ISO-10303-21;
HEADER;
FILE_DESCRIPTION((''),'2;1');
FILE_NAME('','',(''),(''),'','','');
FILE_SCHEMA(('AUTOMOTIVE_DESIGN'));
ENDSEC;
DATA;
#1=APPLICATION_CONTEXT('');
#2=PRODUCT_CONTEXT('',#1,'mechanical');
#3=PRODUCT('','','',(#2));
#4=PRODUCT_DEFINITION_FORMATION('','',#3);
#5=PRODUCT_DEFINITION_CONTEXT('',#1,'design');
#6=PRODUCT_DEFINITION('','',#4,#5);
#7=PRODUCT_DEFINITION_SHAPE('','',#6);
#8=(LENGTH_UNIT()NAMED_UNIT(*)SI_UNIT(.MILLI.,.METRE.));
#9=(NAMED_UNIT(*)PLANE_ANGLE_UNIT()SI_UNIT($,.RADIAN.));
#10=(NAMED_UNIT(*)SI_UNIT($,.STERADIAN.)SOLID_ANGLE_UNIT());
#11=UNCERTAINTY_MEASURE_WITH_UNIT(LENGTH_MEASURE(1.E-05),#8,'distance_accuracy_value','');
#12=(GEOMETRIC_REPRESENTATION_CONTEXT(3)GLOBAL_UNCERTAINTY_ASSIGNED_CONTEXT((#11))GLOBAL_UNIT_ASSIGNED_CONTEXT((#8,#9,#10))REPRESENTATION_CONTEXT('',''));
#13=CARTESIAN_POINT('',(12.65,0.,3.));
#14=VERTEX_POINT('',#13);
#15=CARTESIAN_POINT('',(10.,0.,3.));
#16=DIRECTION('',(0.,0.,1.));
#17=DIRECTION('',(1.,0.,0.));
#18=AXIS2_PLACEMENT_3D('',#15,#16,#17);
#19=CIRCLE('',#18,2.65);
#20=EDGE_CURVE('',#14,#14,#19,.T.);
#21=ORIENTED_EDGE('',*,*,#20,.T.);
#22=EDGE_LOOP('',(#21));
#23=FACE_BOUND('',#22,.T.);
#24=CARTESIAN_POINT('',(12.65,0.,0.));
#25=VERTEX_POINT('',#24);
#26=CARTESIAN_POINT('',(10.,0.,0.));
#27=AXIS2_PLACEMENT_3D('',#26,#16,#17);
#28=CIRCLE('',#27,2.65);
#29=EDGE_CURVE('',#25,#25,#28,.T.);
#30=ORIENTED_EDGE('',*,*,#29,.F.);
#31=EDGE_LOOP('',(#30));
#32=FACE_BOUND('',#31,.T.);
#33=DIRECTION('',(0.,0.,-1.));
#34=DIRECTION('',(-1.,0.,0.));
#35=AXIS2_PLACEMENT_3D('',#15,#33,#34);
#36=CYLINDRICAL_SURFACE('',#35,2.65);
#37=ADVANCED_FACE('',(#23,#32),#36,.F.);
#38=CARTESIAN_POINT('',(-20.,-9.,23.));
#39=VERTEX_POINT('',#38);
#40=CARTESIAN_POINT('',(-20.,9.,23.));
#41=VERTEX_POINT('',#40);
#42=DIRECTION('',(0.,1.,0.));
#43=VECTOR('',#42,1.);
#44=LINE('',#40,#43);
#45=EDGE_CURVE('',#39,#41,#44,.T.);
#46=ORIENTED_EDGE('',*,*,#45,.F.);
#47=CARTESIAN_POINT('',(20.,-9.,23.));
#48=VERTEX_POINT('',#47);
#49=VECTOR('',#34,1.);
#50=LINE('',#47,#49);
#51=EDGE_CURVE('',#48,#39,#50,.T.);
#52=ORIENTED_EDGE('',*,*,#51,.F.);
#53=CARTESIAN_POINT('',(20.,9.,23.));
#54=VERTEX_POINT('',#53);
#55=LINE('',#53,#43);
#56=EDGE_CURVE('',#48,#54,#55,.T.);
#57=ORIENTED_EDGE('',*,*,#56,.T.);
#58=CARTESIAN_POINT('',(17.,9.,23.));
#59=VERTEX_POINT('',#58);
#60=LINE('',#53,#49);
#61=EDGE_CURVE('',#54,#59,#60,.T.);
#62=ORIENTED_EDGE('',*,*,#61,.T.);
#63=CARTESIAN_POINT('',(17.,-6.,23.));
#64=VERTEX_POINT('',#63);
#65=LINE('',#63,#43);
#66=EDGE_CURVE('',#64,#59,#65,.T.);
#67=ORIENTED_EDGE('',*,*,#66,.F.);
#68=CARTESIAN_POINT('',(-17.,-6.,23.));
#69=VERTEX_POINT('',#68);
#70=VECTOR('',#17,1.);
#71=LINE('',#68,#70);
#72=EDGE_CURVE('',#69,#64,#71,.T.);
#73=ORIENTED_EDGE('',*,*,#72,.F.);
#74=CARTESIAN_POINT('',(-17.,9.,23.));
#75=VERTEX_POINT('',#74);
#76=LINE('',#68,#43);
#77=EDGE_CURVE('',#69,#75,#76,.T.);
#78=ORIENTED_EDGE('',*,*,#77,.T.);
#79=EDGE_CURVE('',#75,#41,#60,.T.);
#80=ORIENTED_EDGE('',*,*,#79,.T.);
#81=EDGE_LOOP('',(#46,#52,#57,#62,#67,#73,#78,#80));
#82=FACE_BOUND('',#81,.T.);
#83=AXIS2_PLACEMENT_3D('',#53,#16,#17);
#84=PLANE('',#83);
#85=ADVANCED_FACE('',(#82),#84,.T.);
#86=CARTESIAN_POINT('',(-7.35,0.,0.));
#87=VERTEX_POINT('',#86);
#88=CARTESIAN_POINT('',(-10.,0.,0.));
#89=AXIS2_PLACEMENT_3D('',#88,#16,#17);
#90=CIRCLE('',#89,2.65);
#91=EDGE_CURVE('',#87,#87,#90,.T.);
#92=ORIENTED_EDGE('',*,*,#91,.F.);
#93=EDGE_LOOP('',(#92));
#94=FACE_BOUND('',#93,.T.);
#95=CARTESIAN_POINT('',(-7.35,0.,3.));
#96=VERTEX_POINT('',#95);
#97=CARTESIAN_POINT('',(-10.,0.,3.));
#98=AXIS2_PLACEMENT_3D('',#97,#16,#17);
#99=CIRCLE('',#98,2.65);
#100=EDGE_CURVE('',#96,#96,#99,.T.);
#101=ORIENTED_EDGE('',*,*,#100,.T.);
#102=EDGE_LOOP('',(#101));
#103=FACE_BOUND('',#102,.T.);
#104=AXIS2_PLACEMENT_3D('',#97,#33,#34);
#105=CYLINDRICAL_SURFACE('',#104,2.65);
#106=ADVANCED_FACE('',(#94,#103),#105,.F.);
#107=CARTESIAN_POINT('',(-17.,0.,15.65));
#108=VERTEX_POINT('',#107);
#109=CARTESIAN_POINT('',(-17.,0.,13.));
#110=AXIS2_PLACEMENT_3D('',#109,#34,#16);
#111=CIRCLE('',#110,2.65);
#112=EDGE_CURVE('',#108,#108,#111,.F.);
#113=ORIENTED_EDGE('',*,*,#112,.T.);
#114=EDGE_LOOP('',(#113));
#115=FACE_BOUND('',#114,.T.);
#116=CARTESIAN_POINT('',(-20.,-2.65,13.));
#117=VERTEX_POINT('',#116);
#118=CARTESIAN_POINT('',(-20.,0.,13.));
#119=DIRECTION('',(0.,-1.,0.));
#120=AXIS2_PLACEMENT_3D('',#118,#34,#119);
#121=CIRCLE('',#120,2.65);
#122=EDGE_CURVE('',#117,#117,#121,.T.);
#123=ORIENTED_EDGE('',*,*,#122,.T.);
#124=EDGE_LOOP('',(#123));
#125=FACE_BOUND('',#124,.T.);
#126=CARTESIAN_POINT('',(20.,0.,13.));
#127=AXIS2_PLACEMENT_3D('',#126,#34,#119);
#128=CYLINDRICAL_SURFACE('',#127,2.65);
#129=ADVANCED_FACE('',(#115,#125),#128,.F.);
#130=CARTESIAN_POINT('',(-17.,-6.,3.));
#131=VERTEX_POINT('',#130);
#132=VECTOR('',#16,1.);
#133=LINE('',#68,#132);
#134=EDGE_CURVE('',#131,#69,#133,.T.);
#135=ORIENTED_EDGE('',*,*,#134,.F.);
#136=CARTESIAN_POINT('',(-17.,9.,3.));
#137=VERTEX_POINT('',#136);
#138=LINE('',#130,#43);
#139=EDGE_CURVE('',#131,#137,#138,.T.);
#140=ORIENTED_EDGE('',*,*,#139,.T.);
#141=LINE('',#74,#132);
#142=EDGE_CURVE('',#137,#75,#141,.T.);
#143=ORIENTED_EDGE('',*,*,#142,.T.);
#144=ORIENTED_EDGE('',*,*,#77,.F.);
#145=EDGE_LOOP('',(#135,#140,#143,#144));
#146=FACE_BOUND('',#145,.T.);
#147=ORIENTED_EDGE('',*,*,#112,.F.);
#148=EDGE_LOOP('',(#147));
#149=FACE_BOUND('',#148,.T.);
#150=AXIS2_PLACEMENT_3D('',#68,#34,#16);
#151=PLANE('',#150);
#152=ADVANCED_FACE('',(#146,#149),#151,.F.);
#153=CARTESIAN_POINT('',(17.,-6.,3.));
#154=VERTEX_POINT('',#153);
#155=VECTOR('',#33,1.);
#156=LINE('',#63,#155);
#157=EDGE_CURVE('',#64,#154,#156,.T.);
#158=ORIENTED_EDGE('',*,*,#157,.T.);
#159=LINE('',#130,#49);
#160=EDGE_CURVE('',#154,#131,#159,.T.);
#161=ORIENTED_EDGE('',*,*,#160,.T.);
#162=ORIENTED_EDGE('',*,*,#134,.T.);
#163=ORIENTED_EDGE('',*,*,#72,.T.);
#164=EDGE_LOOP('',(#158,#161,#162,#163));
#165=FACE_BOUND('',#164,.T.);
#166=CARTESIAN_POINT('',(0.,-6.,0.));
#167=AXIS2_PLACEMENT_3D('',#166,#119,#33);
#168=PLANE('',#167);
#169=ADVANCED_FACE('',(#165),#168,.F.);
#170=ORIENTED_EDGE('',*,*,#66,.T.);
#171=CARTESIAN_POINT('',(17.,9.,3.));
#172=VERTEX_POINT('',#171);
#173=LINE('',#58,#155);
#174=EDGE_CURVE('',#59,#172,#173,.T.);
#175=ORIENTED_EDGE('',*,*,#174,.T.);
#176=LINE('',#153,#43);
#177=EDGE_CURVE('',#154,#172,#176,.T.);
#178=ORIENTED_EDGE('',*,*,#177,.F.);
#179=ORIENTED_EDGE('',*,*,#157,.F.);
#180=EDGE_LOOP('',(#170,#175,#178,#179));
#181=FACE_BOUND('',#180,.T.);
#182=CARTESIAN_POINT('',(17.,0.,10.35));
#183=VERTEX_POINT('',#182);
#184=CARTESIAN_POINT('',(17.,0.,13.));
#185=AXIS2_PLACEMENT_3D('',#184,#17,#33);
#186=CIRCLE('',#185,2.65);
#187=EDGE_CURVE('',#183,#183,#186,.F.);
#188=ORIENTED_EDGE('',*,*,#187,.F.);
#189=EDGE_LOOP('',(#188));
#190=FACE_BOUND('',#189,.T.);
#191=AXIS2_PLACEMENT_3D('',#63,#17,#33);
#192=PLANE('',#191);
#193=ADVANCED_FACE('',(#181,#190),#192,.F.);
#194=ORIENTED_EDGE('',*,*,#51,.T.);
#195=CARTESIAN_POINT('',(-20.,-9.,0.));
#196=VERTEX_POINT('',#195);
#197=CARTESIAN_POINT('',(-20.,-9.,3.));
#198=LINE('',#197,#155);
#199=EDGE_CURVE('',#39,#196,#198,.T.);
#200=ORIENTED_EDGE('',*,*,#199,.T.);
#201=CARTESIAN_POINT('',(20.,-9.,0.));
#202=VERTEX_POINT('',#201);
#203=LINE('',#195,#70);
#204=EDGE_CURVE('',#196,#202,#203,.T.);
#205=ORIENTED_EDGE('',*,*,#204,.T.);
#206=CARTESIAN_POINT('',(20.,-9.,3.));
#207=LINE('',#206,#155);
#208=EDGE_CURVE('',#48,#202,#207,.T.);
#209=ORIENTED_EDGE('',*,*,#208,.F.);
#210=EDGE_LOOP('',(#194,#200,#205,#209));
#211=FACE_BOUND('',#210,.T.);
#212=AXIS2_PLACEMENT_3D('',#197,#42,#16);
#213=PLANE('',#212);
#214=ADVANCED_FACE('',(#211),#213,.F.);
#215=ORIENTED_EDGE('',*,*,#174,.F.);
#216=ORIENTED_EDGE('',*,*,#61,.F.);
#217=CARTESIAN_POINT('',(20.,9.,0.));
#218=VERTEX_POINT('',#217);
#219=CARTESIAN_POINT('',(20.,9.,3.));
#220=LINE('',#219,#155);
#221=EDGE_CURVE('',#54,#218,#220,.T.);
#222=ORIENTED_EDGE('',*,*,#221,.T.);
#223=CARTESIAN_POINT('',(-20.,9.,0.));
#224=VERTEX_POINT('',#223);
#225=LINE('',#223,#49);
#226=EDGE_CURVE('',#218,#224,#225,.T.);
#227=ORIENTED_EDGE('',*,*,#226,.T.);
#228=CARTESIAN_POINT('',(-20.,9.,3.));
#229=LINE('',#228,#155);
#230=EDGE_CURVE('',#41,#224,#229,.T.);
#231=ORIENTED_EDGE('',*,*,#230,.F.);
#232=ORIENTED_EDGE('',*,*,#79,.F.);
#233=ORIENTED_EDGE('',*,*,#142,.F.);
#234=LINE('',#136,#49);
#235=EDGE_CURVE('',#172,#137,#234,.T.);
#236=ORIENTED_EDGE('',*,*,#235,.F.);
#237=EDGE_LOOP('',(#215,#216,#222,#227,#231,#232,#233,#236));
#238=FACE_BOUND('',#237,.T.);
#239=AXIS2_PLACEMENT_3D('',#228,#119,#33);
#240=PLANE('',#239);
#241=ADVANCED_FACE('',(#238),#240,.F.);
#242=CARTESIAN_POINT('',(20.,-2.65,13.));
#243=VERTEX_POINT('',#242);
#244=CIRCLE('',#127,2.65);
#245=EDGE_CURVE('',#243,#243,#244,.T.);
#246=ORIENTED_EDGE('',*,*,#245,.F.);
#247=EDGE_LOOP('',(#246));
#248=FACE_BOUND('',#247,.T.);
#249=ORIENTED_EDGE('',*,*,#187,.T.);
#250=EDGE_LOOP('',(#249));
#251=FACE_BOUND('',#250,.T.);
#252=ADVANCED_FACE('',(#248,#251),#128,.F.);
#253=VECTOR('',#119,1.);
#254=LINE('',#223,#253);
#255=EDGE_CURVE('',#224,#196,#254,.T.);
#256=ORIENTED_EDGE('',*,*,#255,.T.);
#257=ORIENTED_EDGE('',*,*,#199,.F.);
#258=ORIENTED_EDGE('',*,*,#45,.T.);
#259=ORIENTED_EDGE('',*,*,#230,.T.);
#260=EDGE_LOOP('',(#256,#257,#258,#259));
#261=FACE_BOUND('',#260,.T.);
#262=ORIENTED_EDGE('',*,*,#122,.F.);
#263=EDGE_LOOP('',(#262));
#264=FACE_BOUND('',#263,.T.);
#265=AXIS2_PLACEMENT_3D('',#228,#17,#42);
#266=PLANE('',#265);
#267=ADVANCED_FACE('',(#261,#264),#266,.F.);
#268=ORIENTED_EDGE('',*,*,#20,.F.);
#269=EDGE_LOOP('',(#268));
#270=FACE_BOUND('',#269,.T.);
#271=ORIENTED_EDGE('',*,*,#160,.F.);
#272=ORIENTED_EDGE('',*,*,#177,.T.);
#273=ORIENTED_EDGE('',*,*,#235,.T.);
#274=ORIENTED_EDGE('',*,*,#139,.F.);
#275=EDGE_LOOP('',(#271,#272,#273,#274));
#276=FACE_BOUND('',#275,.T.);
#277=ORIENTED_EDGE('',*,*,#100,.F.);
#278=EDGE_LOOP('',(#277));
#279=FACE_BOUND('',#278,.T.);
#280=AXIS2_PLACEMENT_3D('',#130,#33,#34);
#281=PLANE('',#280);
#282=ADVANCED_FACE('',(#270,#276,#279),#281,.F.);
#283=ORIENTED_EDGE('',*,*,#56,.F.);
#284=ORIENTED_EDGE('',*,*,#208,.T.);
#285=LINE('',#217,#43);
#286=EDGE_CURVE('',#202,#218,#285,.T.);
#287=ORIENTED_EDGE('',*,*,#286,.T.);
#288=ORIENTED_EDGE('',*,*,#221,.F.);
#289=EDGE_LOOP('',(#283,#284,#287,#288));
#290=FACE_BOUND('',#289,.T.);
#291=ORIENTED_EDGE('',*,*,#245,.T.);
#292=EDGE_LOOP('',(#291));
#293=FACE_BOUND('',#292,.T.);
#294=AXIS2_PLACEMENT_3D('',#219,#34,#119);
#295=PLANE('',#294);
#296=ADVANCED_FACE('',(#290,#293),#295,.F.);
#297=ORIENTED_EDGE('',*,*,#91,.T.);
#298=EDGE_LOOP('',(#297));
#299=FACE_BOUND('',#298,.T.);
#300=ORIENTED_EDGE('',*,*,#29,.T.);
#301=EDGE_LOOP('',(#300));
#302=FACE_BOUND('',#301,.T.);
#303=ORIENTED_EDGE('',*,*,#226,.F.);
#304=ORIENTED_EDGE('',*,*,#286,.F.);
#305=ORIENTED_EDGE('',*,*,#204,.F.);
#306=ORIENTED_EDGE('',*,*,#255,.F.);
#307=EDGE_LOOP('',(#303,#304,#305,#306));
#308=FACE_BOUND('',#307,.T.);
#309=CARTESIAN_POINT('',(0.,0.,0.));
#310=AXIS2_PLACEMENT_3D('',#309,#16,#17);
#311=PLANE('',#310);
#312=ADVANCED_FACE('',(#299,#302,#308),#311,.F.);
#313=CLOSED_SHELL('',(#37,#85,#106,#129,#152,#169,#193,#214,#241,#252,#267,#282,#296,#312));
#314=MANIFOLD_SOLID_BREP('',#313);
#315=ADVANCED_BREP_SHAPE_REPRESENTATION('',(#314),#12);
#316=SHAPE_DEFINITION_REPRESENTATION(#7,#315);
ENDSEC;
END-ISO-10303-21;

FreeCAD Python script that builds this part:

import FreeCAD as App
import Part
import Sketcher

V = App.Vector
Q = App.Units.Quantity


def add_polygon(sketch, points):
    """Adds a closed chain of lines whose ends are joined by coincident constraints."""
    first, n = sketch.GeometryCount, len(points)
    for a, b in zip(points, points[1:] + points[:1]):
        sketch.addGeometry(Part.LineSegment(App.Vector(*a, 0), App.Vector(*b, 0)), False)
    for i in range(n):
        sketch.addConstraint(Sketcher.Constraint("Coincident", first + i, 2, first + (i + 1) % n, 1))

doc = App.newDocument("Part")
body = doc.addObject("PartDesign::Body", "Body")

# Sketch on XY plane
sketch1 = doc.addObject("Sketcher::SketchObject", "Sketch")
body.addObject(sketch1)
sketch1.AttachmentSupport = (doc.XY_Plane, [""])
sketch1.MapMode = "FlatFace"
add_polygon(sketch1, [(-20, 9), (-20, -9), (20, -9), (20, 9)])  # lines 0-3
sketch1.addGeometry(Part.Circle(V(-10, 0, 0), V(0, 0, 1), 2.65), False)  # 4
sketch1.addGeometry(Part.Circle(V(10, 0, 0), V(0, 0, 1), 2.65), False)  # 5
sketch1.addConstraint([
    Sketcher.Constraint("Vertical", 0),
    Sketcher.Constraint("Horizontal", 1),
    Sketcher.Constraint("Vertical", 2),
    Sketcher.Constraint("Horizontal", 3),
    Sketcher.Constraint("Equal", 4, 5),
    Sketcher.Constraint("Symmetric", 4, 3, 5, 3, -1, 1),
    Sketcher.Constraint("Symmetric", 0, 2, 2, 2, -1, 1),
    Sketcher.Constraint("PointOnObject", 4, 3, -1),
    Sketcher.Constraint("Diameter", 4, Q("5.3 mm")),
    Sketcher.Constraint("DistanceX", 1, 1, 1, 2, Q("40 mm")),
    Sketcher.Constraint("DistanceY", 0, 2, 0, 1, Q("18 mm")),
    Sketcher.Constraint("DistanceX", 4, 3, -1, 1, Q("10 mm")),
])
pad1 = doc.addObject("PartDesign::Pad", "Pad")
body.addObject(pad1)
pad1.Profile = sketch1
pad1.Length = 3

# Sketch on YZ plane
sketch2 = doc.addObject("Sketcher::SketchObject", "Sketch001")
body.addObject(sketch2)
sketch2.AttachmentSupport = (doc.YZ_Plane, [""])
sketch2.MapMode = "FlatFace"
sketch2.AttachmentOffset = App.Placement(V(0, 0, -20), App.Rotation())
add_polygon(sketch2, [(9, 3), (-9, 3), (-9, 23), (9, 23)])  # lines 0-3
sketch2.addGeometry(Part.Circle(V(0, 13, 0), V(0, 0, 1), 2.65), False)  # 4
sketch2.addConstraint([
    Sketcher.Constraint("Horizontal", 0),
    Sketcher.Constraint("Vertical", 1),
    Sketcher.Constraint("Horizontal", 2),
    Sketcher.Constraint("Vertical", 3),
    Sketcher.Constraint("PointOnObject", 4, 3, -2),
    Sketcher.Constraint("Diameter", 4, Q("5.3 mm")),
    Sketcher.Constraint("DistanceX", 0, 2, 0, 1, Q("18 mm")),
    Sketcher.Constraint("DistanceY", 1, 1, 1, 2, Q("20 mm")),
    Sketcher.Constraint("DistanceY", -1, 1, 4, 3, Q("13 mm")),
    Sketcher.Constraint("DistanceX", 0, 2, -1, 1, Q("9 mm")),
    Sketcher.Constraint("DistanceY", -1, 1, 0, 2, Q("3 mm")),
])
pad2 = doc.addObject("PartDesign::Pad", "Pad001")
body.addObject(pad2)
pad2.Profile = sketch2
pad2.Length = 40

# Sketch on XZ plane
sketch3 = doc.addObject("Sketcher::SketchObject", "Sketch002")
body.addObject(sketch3)
sketch3.AttachmentSupport = (doc.XZ_Plane, [""])
sketch3.MapMode = "FlatFace"
sketch3.AttachmentOffset = App.Placement(V(0, 0, -9), App.Rotation())
add_polygon(sketch3, [(-17, 3), (-17, 23), (17, 23), (17, 3)])  # lines 0-3
sketch3.addConstraint([
    Sketcher.Constraint("Vertical", 0),
    Sketcher.Constraint("Horizontal", 1),
    Sketcher.Constraint("Vertical", 2),
    Sketcher.Constraint("Horizontal", 3),
    Sketcher.Constraint("DistanceX", 1, 1, 1, 2, Q("34 mm")),
    Sketcher.Constraint("DistanceY", 0, 1, 0, 2, Q("20 mm")),
    Sketcher.Constraint("DistanceX", 0, 2, -1, 1, Q("17 mm")),
    Sketcher.Constraint("DistanceY", -1, 1, 0, 2, Q("23 mm")),
])
pocket1 = doc.addObject("PartDesign::Pocket", "Pocket")
body.addObject(pocket1)
pocket1.Profile = sketch3
pocket1.Length = 15
pocket1.Reversed = True

doc.recompute()
